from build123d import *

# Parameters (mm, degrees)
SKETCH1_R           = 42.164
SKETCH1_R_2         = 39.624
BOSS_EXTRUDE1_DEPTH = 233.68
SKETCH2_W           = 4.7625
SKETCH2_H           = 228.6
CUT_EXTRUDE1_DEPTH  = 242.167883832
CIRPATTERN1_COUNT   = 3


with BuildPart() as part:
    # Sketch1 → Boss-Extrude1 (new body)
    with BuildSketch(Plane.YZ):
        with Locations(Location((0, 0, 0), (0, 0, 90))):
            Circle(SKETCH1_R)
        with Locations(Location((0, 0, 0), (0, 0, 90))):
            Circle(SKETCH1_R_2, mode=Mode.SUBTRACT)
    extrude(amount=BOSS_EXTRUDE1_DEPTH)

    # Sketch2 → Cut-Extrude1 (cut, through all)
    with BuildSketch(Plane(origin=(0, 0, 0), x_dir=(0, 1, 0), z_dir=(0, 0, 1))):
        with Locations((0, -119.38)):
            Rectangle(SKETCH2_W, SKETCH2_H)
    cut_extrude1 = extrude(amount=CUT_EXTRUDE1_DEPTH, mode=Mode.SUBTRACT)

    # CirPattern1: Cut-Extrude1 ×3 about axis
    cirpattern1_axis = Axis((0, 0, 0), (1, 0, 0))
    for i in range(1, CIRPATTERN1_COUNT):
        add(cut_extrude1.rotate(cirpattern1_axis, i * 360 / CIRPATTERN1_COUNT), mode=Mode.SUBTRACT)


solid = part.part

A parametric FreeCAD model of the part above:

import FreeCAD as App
import Part
import Sketcher
Q = App.Units.Quantity


def add_polygon(sketch, points):
    """Adds a closed chain of lines whose ends are joined by coincident constraints."""
    first, n = sketch.GeometryCount, len(points)
    for a, b in zip(points, points[1:] + points[:1]):
        sketch.addGeometry(Part.LineSegment(App.Vector(*a, 0), App.Vector(*b, 0)), False)
    for i in range(n):
        sketch.addConstraint(Sketcher.Constraint("Coincident", first + i, 2, first + (i + 1) % n, 1))

doc = App.newDocument("Part")
body = doc.addObject("PartDesign::Body", "Body")

# Sketch on YZ plane
sketch1 = doc.addObject("Sketcher::SketchObject", "Sketch")
body.addObject(sketch1)
sketch1.AttachmentSupport = (doc.YZ_Plane, [""])
sketch1.MapMode = "FlatFace"
sketch1.addGeometry(Part.Circle(App.Vector(0, 0, 0), App.Vector(0, 0, 1), 42.164), False)
sketch1.addGeometry(Part.Circle(App.Vector(0, 0, 0), App.Vector(0, 0, 1), 39.624), False)
sketch1.addConstraint(Sketcher.Constraint("Coincident", 0, 3, -1, 1))
sketch1.addConstraint(Sketcher.Constraint("Coincident", 1, 3, -1, 1))
sketch1.addConstraint(Sketcher.Constraint("Diameter", 0, Q("3.32 in")))
sketch1.addConstraint(Sketcher.Constraint("Diameter", 1, Q("3.12 in")))
pad1 = doc.addObject("PartDesign::Pad", "Pad")
body.addObject(pad1)
pad1.Profile = sketch1
pad1.Length = Q("9.2 in")

# Sketch on XY plane
sketch2 = doc.addObject("Sketcher::SketchObject", "Sketch001")
body.addObject(sketch2)
sketch2.AttachmentSupport = (doc.XY_Plane, [""])
sketch2.MapMode = "FlatFace"
add_polygon(sketch2, [(5.08, -2.38125), (233.68, -2.38125), (233.68, 2.38125), (5.08, 2.38125)])  # lines 0-3
sketch2.addConstraint(Sketcher.Constraint("Horizontal", 0))
sketch2.addConstraint(Sketcher.Constraint("Vertical", 1))
sketch2.addConstraint(Sketcher.Constraint("Horizontal", 2))
sketch2.addConstraint(Sketcher.Constraint("Vertical", 3))
sketch2.addConstraint(Sketcher.Constraint("DistanceX", 0, 1, 0, 2, Q("9 in")))
sketch2.addConstraint(Sketcher.Constraint("DistanceX", -1, 1, 0, 2, Q("9.2 in")))
sketch2.addConstraint(Sketcher.Constraint("DistanceY", 1, 1, 1, 2, Q("0.1875 in")))
sketch2.addConstraint(Sketcher.Constraint("DistanceY", 0, 2, -1, 1, Q("0.09375 in")))
pocket1 = doc.addObject("PartDesign::Pocket", "Pocket")
body.addObject(pocket1)
pocket1.Profile = sketch2
pocket1.Type = "ThroughAll"
pocket1.Reversed = True
doc.recompute()

polarpattern = doc.addObject("PartDesign::PolarPattern", "PolarPattern")
body.addObject(polarpattern)
polarpattern.Originals = [pocket1]
polarpattern.Axis = (doc.X_Axis, [""])
polarpattern.Angle = 360
polarpattern.Occurrences = 3
body.Tip = polarpattern

doc.recompute()
